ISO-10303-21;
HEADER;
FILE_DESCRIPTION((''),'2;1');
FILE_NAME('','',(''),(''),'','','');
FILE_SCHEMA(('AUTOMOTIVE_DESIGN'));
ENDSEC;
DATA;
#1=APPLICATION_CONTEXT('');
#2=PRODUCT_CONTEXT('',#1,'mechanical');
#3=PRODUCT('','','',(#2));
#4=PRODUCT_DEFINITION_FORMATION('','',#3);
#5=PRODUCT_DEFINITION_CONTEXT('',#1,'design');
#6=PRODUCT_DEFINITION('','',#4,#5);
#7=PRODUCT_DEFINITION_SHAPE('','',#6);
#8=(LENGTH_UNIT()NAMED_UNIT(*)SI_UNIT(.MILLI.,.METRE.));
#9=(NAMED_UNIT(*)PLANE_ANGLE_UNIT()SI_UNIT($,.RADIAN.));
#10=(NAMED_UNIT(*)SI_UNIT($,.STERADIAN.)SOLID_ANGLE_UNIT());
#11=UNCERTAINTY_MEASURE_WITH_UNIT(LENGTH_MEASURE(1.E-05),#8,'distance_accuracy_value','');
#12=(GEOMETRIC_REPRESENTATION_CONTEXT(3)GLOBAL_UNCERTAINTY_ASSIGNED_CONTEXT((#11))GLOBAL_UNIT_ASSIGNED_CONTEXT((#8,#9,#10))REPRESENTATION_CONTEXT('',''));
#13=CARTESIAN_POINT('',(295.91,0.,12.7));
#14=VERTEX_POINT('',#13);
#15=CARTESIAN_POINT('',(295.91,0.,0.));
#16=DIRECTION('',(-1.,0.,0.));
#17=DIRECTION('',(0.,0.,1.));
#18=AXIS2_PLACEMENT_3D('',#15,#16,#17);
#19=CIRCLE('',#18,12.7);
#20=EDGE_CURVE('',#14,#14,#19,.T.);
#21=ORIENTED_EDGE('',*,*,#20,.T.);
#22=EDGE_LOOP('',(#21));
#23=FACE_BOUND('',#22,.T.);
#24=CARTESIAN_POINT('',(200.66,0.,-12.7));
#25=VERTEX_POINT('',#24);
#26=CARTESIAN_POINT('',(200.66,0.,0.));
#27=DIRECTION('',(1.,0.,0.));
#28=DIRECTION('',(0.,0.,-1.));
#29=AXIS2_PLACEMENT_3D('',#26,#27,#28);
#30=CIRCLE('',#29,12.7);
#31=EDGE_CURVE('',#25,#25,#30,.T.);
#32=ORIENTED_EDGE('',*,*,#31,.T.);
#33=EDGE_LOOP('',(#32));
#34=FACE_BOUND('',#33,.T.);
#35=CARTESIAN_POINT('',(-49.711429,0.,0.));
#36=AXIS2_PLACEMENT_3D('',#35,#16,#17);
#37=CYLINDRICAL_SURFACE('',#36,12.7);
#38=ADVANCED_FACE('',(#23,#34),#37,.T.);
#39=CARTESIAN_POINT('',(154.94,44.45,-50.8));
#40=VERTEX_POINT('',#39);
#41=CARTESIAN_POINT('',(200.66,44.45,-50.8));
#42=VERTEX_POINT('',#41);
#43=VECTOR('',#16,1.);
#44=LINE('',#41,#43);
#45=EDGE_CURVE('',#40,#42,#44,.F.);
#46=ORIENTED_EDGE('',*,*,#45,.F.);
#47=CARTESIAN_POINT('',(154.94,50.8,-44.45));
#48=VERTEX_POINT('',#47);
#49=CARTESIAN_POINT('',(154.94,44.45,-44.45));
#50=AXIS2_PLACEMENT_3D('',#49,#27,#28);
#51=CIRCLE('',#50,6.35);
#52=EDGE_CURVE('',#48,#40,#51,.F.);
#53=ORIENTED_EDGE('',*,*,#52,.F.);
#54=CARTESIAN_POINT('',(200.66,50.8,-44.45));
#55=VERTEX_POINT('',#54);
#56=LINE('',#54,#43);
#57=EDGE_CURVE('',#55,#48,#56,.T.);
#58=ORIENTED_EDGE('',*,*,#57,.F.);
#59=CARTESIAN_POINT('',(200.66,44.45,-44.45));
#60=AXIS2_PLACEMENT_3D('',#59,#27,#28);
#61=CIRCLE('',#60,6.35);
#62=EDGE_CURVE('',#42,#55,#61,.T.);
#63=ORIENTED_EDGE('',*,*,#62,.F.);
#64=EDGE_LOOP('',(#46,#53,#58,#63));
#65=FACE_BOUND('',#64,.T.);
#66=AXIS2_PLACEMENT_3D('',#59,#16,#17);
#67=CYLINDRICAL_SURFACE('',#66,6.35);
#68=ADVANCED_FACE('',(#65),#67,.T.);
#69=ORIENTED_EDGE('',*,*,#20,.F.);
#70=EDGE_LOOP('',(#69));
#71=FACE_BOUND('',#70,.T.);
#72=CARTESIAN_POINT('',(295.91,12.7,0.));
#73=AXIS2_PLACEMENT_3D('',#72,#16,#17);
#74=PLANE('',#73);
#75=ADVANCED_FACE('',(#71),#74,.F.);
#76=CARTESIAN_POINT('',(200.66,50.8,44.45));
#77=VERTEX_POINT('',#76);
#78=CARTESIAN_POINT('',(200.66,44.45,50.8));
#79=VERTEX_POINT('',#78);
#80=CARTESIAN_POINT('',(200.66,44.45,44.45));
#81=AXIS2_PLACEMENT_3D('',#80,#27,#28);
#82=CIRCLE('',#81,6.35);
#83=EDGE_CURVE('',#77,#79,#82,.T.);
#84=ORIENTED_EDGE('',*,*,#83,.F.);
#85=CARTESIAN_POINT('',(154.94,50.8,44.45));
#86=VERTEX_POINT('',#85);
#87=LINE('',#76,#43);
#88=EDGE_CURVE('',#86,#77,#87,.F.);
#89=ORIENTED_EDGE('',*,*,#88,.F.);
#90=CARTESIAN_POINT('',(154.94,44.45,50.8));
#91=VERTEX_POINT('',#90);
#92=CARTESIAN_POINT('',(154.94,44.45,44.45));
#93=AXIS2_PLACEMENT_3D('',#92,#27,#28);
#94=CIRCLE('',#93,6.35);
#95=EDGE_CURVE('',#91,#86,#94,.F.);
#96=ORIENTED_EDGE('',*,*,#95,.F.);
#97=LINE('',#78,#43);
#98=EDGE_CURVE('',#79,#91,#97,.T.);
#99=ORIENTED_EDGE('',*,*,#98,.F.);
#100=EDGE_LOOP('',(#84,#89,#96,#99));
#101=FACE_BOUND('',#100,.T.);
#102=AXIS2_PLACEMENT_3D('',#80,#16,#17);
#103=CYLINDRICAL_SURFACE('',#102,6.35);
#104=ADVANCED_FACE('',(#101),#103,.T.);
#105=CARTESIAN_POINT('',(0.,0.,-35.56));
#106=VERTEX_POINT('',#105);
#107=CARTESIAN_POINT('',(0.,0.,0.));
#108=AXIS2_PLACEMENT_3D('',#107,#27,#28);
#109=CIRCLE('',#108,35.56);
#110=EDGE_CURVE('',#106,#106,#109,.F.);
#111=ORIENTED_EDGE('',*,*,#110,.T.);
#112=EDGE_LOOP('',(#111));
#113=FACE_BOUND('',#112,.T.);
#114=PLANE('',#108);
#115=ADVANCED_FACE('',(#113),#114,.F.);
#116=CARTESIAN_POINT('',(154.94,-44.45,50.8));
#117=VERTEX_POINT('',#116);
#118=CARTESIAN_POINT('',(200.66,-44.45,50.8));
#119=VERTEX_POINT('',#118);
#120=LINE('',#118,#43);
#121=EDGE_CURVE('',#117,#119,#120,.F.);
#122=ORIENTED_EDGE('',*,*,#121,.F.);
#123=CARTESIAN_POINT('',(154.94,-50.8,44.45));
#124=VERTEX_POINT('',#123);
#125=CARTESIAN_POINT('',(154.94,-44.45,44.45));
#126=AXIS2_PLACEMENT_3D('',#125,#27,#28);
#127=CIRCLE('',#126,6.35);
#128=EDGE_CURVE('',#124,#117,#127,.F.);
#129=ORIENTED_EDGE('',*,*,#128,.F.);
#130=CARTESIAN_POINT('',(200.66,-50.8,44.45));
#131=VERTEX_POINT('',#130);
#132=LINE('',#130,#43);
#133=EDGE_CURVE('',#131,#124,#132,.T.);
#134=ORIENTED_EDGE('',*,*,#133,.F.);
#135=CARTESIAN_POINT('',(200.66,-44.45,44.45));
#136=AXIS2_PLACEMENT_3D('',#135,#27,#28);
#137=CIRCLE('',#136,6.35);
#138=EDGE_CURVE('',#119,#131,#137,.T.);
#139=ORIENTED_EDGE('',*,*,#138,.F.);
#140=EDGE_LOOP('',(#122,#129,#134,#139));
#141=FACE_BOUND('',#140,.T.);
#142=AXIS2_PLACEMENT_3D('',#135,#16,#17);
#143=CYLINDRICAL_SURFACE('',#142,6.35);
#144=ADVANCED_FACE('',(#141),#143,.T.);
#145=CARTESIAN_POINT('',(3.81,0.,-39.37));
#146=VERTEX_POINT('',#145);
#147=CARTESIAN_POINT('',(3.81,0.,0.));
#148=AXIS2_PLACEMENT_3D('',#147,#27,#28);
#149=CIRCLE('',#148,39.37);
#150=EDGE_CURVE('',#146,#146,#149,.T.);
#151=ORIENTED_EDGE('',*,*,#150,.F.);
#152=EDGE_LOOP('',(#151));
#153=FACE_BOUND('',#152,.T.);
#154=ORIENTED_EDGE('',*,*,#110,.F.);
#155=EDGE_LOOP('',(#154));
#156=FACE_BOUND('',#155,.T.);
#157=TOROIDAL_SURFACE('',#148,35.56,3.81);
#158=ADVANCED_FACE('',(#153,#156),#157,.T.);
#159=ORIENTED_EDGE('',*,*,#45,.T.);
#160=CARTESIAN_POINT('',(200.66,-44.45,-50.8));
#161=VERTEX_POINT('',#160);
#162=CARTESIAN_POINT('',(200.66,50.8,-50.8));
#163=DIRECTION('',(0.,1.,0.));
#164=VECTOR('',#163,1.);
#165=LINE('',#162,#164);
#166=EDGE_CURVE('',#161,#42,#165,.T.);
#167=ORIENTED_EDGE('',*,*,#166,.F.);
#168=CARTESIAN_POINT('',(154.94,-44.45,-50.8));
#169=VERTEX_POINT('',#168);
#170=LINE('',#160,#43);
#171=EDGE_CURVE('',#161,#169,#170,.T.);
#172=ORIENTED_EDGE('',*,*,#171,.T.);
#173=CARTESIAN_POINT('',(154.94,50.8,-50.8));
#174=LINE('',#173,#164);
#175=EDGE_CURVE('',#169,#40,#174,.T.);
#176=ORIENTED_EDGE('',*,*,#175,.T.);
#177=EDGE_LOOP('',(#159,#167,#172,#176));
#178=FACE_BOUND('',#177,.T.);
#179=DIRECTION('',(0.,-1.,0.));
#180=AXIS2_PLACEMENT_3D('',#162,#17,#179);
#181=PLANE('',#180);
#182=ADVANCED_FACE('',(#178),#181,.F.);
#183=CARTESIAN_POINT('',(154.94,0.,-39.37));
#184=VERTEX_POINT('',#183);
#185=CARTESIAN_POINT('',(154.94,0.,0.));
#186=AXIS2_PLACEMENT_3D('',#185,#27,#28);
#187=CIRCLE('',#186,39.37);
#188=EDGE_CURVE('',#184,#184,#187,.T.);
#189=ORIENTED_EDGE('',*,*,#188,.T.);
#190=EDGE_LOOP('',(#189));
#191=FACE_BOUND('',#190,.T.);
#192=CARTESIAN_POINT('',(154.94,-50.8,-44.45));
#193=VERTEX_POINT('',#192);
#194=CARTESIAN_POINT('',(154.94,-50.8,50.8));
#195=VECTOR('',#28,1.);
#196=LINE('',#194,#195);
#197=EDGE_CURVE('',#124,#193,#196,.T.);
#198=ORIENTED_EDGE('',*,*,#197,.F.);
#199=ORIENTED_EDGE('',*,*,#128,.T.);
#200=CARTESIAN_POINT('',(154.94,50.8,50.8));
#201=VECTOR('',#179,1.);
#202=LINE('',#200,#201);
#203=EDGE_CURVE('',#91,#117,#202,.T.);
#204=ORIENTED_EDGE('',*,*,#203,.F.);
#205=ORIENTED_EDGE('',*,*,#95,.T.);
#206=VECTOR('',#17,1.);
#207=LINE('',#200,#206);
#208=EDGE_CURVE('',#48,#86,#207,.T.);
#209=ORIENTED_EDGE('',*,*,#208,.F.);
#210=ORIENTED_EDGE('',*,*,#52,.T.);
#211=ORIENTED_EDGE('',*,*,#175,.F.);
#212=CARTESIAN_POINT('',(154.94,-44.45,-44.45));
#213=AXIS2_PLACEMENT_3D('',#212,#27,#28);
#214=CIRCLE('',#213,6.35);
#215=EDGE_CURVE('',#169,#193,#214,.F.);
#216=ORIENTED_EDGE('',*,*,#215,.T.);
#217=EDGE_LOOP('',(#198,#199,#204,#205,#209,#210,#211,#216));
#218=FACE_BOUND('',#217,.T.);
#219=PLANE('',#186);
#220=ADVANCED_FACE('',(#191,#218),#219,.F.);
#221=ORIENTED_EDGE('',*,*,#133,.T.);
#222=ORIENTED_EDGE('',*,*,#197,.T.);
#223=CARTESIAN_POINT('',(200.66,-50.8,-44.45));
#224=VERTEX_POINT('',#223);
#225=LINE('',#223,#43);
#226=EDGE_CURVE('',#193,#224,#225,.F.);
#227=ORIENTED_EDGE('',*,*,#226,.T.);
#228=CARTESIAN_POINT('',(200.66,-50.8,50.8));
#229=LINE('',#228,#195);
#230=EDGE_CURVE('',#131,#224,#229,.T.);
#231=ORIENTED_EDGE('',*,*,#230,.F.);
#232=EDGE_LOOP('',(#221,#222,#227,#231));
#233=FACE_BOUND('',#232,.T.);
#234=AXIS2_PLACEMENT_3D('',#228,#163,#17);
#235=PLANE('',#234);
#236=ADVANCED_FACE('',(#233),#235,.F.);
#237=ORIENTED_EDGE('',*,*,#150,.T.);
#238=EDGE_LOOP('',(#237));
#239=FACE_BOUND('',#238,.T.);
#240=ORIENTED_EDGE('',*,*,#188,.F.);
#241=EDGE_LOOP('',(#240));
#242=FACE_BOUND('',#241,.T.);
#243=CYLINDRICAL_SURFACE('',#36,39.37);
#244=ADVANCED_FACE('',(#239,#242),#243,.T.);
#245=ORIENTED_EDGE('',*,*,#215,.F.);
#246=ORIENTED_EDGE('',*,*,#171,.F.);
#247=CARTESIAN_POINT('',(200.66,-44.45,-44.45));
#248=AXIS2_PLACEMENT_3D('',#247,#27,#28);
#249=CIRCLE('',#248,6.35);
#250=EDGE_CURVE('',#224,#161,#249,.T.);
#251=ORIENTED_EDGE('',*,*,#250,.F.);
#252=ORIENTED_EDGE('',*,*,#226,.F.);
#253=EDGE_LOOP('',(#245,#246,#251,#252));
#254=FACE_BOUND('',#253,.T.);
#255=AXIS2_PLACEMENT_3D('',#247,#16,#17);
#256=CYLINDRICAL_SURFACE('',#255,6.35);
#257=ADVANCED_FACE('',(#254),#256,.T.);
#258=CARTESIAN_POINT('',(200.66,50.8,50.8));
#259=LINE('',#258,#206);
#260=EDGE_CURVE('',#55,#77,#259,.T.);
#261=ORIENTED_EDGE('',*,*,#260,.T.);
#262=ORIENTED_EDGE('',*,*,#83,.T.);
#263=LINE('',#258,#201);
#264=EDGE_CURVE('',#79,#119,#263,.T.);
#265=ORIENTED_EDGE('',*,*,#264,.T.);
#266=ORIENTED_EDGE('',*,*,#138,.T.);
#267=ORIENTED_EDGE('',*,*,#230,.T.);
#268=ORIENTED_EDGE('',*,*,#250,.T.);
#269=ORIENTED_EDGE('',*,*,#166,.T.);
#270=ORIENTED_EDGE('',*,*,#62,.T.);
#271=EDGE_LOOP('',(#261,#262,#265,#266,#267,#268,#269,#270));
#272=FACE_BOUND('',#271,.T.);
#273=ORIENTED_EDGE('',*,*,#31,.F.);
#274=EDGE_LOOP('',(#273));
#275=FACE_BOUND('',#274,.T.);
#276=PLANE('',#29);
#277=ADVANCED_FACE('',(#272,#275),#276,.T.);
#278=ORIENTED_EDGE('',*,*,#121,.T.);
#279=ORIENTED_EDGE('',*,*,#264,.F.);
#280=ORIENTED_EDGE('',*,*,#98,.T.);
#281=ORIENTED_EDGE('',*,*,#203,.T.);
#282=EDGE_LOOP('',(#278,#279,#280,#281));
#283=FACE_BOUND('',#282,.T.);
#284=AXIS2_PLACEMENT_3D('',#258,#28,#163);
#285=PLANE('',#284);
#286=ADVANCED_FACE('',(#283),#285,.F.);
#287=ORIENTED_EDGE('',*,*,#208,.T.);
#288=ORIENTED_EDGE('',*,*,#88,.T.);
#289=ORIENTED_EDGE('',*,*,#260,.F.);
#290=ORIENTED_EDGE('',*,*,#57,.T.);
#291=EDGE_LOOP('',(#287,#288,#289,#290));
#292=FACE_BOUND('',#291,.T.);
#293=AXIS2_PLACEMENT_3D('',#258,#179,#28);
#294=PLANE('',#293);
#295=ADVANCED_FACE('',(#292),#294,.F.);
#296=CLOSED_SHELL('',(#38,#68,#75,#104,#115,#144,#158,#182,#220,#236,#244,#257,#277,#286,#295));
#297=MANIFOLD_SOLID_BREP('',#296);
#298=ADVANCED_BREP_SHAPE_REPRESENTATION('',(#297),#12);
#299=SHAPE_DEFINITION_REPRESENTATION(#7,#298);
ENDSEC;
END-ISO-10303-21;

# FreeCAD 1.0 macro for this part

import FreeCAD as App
import Part
import Sketcher
Q = App.Units.Quantity


def edges_at(feature, points):
    """Names of the edges that pass closest to the given points."""
    edges = feature.Shape.Edges
    near = lambda p: min(range(len(edges)), key=lambda i: edges[i].distToShape(Part.Vertex(*p))[0])
    return sorted({f"Edge{near(p) + 1}" for p in points})


def add_polygon(sketch, points):
    """Adds a closed chain of lines whose ends are joined by coincident constraints."""
    first, n = sketch.GeometryCount, len(points)
    for a, b in zip(points, points[1:] + points[:1]):
        sketch.addGeometry(Part.LineSegment(App.Vector(*a, 0), App.Vector(*b, 0)), False)
    for i in range(n):
        sketch.addConstraint(Sketcher.Constraint("Coincident", first + i, 2, first + (i + 1) % n, 1))

doc = App.newDocument("Part")
params = doc.addObject("Spreadsheet::Sheet", "Params")
for row, (alias, value) in enumerate([
    ("sketch1_width", "6.1 in"),
    ("sketch1_height", "0.5 in"),
    ("sketch1_width2", "5.55 in"),
    ("sketch1_height2", "1.05 in"),
    ("revolution_angle", "360 deg"),
    ("sketch2_width", "4 in"),
    ("pad1_length", "1.8 in"),
    ("fillet_radius", "0.25 in"),
    ("fillet2_radius", "0.15 in"),
], start=1):
    params.set(f"A{row}", alias)
    params.set(f"B{row}", "=" + value)
    params.setAlias(f"B{row}", alias)

body = doc.addObject("PartDesign::Body", "Body")

# Sketch on XY plane
sketch1 = doc.addObject("Sketcher::SketchObject", "Sketch")
body.addObject(sketch1)
sketch1.AttachmentSupport = (doc.XY_Plane, [""])
sketch1.MapMode = "FlatFace"
add_polygon(sketch1, [(296, 13), (155, 13), (155, 39), (0, 39), (0, 0), (296, 0)])  # lines 0-5
sketch1.addConstraint([
    Sketcher.Constraint("Horizontal", 0),
    Sketcher.Constraint("Vertical", 1),
    Sketcher.Constraint("Horizontal", 2),
    Sketcher.Constraint("Vertical", 3),
    Sketcher.Constraint("Horizontal", 4),
    Sketcher.Constraint("Vertical", 5),
    Sketcher.Constraint("Coincident", 3, 2, -1, 1),
    Sketcher.Constraint("DistanceX", 2, 2, 2, 1, Q("6.1 in")),
    Sketcher.Constraint("DistanceY", 5, 1, 5, 2, Q("0.5 in")),
    Sketcher.Constraint("DistanceX", 0, 2, 0, 1, Q("5.55 in")),
    Sketcher.Constraint("DistanceY", 1, 1, 1, 2, Q("1.05 in")),
])
sketch1.setExpression("Constraints[13]", "Params.sketch1_width")
sketch1.setExpression("Constraints[14]", "Params.sketch1_height")
sketch1.setExpression("Constraints[15]", "Params.sketch1_width2")
sketch1.setExpression("Constraints[16]", "Params.sketch1_height2")
revolution = doc.addObject("PartDesign::Revolution", "Revolution")
body.addObject(revolution)
revolution.Profile = sketch1
revolution.ReferenceAxis = (sketch1, ["H_Axis"])
revolution.setExpression("Angle", "Params.revolution_angle")

# Sketch on YZ plane
sketch2 = doc.addObject("Sketcher::SketchObject", "Sketch001")
body.addObject(sketch2)
sketch2.AttachmentSupport = (doc.YZ_Plane, [""])
sketch2.MapMode = "FlatFace"
sketch2.AttachmentOffset = App.Placement(App.Vector(0, 0, 6.1 * 25.4), App.Rotation())
add_polygon(sketch2, [(51, 51), (-51, 51), (-51, -51), (51, -51)])  # lines 0-3
sketch2.addConstraint([
    Sketcher.Constraint("Horizontal", 0),
    Sketcher.Constraint("Vertical", 1),
    Sketcher.Constraint("Horizontal", 2),
    Sketcher.Constraint("Vertical", 3),
    Sketcher.Constraint("Symmetric", 0, 2, 2, 2, -1, 1),
    Sketcher.Constraint("Equal", 2, 1),
    Sketcher.Constraint("DistanceX", 0, 2, 0, 1, Q("4 in")),
])
sketch2.setExpression("Constraints[10]", "Params.sketch2_width")
pad1 = doc.addObject("PartDesign::Pad", "Pad")
body.addObject(pad1)
pad1.Profile = sketch2
pad1.setExpression("Length", "Params.pad1_length")
doc.recompute()

fillet = doc.addObject("PartDesign::Fillet", "Fillet")
body.addObject(fillet)
fillet.Base = (pad1, edges_at(pad1, [
    (177.8, 50.8, 50.8),
    (177.8, -50.8, 50.8),
    (177.8, -50.8, -50.8),
    (177.8, 50.8, -50.8),
]))
fillet.setExpression("Radius", "Params.fillet_radius")
doc.recompute()

fillet2 = doc.addObject("PartDesign::Fillet", "Fillet001")
body.addObject(fillet2)
fillet2.Base = (fillet, edges_at(fillet, [(0, -39.37, 0)]))
fillet2.setExpression("Radius", "Params.fillet2_radius")

doc.recompute()
